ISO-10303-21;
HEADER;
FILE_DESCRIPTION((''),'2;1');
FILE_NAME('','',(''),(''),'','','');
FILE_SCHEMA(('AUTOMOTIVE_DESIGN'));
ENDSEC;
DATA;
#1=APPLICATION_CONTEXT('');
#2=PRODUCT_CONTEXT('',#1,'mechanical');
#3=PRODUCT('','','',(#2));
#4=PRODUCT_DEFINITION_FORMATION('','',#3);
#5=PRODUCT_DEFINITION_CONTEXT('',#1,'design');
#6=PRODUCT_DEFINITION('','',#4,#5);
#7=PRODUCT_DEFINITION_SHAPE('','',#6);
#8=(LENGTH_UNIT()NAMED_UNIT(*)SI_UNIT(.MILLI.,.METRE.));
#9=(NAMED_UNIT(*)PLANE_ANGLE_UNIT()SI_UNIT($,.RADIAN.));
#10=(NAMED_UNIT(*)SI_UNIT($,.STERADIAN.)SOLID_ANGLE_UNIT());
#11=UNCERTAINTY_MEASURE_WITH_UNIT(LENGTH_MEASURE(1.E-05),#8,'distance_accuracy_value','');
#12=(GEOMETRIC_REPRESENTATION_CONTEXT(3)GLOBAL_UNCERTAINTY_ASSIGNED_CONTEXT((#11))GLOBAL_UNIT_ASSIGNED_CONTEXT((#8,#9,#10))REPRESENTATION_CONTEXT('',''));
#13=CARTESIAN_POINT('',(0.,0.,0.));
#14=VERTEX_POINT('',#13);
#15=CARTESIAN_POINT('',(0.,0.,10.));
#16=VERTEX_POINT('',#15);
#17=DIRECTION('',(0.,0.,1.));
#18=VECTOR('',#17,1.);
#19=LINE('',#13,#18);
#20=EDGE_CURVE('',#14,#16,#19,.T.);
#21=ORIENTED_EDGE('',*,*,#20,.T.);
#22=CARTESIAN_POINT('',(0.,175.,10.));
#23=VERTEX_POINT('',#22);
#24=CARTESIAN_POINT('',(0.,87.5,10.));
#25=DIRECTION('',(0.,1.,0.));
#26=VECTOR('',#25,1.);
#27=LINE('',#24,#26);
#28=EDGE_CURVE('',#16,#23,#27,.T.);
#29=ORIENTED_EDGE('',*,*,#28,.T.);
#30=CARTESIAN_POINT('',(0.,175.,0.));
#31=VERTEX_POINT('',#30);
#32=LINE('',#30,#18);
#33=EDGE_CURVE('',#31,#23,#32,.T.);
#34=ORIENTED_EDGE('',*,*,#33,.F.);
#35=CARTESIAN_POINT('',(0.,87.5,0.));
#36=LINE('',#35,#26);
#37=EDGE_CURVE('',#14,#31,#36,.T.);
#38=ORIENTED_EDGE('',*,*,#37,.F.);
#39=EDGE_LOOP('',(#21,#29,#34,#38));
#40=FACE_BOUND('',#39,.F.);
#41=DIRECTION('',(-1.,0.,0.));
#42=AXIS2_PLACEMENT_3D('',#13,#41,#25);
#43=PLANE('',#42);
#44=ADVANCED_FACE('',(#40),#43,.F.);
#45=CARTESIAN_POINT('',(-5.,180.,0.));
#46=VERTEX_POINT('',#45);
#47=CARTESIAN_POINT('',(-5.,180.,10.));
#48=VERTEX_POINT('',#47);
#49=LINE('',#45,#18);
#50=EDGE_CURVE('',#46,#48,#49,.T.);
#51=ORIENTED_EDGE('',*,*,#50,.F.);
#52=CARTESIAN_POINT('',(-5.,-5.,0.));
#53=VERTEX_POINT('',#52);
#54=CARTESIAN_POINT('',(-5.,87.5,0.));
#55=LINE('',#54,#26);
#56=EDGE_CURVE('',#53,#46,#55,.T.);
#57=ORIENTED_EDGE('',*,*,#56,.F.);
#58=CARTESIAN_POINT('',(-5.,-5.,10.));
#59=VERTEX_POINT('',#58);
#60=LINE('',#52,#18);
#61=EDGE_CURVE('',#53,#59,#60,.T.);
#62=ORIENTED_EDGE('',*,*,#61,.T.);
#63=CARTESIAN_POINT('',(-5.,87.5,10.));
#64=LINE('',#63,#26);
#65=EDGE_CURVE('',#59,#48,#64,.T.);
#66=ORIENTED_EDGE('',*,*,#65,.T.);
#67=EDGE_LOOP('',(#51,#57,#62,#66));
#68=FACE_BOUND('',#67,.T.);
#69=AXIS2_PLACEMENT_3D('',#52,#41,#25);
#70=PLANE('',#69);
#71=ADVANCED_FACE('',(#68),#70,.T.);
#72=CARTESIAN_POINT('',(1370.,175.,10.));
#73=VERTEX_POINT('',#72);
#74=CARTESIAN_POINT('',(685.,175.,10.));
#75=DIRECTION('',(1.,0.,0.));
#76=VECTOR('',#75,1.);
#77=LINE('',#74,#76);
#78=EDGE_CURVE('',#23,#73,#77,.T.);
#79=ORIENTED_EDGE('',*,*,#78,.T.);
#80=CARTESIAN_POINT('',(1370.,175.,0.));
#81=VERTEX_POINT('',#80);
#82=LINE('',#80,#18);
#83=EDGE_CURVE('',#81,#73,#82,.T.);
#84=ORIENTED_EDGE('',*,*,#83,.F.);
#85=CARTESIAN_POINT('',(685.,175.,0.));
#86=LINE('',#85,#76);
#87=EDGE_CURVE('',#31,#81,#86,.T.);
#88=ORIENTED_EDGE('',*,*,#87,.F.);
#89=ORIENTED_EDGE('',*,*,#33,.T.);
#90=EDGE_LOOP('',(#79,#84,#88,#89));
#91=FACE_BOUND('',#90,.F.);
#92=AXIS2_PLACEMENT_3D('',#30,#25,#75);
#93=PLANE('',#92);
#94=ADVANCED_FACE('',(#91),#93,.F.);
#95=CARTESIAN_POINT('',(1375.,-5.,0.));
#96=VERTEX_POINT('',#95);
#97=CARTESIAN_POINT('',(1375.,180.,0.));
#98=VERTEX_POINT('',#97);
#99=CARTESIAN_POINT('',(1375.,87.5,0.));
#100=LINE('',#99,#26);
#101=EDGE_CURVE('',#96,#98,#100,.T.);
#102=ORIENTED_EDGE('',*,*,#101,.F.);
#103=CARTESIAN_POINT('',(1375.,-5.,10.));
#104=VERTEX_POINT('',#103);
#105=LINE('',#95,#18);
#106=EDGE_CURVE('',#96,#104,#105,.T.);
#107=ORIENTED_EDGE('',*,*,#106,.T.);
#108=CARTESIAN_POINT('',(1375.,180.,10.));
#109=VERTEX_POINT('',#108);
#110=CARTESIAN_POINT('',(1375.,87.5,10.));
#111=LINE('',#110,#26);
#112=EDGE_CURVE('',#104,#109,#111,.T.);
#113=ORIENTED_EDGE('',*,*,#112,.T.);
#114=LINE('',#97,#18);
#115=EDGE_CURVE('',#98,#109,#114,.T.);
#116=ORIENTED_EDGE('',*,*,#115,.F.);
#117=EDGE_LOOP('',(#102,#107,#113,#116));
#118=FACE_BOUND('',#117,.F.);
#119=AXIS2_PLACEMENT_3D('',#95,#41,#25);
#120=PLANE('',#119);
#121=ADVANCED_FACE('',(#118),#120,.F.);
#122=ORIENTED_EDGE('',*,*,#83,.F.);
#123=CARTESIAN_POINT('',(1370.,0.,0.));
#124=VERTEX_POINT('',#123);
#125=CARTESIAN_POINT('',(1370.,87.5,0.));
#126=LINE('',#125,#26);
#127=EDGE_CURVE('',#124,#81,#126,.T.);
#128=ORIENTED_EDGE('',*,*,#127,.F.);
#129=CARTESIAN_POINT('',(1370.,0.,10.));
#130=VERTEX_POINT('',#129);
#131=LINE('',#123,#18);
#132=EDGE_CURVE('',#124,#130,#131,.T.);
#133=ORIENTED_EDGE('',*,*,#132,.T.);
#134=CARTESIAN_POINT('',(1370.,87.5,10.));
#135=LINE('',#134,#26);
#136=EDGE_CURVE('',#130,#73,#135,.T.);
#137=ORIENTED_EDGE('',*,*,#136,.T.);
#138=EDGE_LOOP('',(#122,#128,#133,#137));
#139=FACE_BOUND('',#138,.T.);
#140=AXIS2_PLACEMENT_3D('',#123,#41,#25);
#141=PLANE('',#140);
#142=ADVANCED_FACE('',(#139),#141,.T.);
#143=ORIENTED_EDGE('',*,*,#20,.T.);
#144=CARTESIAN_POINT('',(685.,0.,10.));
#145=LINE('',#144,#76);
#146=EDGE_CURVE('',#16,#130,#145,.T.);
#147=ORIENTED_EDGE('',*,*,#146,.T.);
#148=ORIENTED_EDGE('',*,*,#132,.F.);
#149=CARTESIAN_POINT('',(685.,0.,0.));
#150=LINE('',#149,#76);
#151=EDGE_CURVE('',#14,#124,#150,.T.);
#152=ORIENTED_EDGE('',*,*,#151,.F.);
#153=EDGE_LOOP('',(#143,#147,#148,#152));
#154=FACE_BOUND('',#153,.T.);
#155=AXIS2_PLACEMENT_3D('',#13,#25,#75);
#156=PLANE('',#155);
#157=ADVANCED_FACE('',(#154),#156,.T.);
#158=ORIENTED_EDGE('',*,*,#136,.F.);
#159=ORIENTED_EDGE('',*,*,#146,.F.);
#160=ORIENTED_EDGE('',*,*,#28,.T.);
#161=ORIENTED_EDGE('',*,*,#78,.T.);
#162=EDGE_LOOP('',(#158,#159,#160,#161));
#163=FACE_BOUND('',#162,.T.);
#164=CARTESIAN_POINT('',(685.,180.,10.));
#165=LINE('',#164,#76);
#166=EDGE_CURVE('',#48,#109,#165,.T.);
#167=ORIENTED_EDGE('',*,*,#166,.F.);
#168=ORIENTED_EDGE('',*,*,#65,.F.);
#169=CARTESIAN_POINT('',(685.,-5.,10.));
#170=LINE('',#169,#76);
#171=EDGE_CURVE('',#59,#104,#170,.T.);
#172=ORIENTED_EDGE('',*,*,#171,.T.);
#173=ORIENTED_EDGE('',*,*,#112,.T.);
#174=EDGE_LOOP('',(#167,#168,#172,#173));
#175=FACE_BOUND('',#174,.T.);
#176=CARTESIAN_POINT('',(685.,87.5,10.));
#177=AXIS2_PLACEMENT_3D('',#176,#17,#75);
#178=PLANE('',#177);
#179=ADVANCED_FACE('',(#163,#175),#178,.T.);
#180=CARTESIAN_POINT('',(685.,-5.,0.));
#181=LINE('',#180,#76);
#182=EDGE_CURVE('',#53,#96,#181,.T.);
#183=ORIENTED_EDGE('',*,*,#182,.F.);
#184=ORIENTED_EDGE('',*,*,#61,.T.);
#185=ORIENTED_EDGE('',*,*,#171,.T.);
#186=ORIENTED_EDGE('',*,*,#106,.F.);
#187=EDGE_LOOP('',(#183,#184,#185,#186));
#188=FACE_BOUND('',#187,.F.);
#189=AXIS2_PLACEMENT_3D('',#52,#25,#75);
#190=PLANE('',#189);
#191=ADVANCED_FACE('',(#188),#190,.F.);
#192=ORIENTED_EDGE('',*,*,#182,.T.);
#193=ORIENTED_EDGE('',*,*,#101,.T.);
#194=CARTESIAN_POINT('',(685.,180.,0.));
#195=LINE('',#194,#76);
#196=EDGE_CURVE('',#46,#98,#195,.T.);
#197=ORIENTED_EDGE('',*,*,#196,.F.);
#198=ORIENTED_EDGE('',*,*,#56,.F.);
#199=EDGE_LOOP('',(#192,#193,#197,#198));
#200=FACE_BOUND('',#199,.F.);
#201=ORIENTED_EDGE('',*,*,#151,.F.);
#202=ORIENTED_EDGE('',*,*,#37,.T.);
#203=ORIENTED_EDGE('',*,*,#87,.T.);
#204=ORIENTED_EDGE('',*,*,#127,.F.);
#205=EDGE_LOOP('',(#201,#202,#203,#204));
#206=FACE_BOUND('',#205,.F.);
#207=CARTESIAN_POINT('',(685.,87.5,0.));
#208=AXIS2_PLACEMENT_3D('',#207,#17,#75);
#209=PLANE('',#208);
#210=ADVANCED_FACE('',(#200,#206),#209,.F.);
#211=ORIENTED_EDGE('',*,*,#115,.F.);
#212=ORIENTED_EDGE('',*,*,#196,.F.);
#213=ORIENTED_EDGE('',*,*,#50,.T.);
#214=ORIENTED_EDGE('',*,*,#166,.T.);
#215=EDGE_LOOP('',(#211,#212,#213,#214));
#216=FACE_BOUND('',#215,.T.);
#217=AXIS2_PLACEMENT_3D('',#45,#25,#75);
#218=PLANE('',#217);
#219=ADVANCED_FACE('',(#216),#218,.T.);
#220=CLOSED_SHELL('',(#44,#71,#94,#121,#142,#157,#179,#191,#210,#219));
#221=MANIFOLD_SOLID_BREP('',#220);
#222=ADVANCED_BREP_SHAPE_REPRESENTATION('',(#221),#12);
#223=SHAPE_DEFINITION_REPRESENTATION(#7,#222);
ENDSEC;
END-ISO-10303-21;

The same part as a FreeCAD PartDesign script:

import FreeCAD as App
import Part
import Sketcher

V = App.Vector
Q = App.Units.Quantity


def add_polygon(sketch, points):
    """Adds a closed chain of lines whose ends are joined by coincident constraints."""
    first, n = sketch.GeometryCount, len(points)
    for a, b in zip(points, points[1:] + points[:1]):
        sketch.addGeometry(Part.LineSegment(App.Vector(*a, 0), App.Vector(*b, 0)), False)
    for i in range(n):
        sketch.addConstraint(Sketcher.Constraint("Coincident", first + i, 2, first + (i + 1) % n, 1))

doc = App.newDocument("Part")
body = doc.addObject("PartDesign::Body", "Body")

# Sketch on XY plane
sketch1 = doc.addObject("Sketcher::SketchObject", "Sketch")
body.addObject(sketch1)
sketch1.AttachmentSupport = (doc.XY_Plane, [""])
sketch1.MapMode = "FlatFace"
add_polygon(sketch1, [(-5, 180), (-5, -5), (1375, -5), (1375, 180)])  # lines 0-3
add_polygon(sketch1, [(1370, 0), (0, 0), (0, 175), (1370, 175)])  # lines 4-7
sketch1.addConstraint([
    Sketcher.Constraint("Vertical", 0),
    Sketcher.Constraint("Horizontal", 1),
    Sketcher.Constraint("Vertical", 2),
    Sketcher.Constraint("Horizontal", 3),
    Sketcher.Constraint("Horizontal", 4),
    Sketcher.Constraint("Vertical", 5),
    Sketcher.Constraint("Horizontal", 6),
    Sketcher.Constraint("Vertical", 7),
    Sketcher.Constraint("Coincident", 4, 2, -1, 1),
    Sketcher.Constraint("DistanceX", 1, 1, 1, 2, Q("1380 mm")),
    Sketcher.Constraint("DistanceX", 4, 2, 4, 1, Q("1370 mm")),
    Sketcher.Constraint("DistanceY", 0, 2, 0, 1, Q("185 mm")),
    Sketcher.Constraint("DistanceY", 5, 1, 5, 2, Q("175 mm")),
    Sketcher.Constraint("DistanceX", 0, 2, -1, 1, Q("5 mm")),
    Sketcher.Constraint("DistanceY", 0, 2, -1, 1, Q("5 mm")),
])
pad1 = doc.addObject("PartDesign::Pad", "Pad")
body.addObject(pad1)
pad1.Profile = sketch1
pad1.Length = 10

doc.recompute()
